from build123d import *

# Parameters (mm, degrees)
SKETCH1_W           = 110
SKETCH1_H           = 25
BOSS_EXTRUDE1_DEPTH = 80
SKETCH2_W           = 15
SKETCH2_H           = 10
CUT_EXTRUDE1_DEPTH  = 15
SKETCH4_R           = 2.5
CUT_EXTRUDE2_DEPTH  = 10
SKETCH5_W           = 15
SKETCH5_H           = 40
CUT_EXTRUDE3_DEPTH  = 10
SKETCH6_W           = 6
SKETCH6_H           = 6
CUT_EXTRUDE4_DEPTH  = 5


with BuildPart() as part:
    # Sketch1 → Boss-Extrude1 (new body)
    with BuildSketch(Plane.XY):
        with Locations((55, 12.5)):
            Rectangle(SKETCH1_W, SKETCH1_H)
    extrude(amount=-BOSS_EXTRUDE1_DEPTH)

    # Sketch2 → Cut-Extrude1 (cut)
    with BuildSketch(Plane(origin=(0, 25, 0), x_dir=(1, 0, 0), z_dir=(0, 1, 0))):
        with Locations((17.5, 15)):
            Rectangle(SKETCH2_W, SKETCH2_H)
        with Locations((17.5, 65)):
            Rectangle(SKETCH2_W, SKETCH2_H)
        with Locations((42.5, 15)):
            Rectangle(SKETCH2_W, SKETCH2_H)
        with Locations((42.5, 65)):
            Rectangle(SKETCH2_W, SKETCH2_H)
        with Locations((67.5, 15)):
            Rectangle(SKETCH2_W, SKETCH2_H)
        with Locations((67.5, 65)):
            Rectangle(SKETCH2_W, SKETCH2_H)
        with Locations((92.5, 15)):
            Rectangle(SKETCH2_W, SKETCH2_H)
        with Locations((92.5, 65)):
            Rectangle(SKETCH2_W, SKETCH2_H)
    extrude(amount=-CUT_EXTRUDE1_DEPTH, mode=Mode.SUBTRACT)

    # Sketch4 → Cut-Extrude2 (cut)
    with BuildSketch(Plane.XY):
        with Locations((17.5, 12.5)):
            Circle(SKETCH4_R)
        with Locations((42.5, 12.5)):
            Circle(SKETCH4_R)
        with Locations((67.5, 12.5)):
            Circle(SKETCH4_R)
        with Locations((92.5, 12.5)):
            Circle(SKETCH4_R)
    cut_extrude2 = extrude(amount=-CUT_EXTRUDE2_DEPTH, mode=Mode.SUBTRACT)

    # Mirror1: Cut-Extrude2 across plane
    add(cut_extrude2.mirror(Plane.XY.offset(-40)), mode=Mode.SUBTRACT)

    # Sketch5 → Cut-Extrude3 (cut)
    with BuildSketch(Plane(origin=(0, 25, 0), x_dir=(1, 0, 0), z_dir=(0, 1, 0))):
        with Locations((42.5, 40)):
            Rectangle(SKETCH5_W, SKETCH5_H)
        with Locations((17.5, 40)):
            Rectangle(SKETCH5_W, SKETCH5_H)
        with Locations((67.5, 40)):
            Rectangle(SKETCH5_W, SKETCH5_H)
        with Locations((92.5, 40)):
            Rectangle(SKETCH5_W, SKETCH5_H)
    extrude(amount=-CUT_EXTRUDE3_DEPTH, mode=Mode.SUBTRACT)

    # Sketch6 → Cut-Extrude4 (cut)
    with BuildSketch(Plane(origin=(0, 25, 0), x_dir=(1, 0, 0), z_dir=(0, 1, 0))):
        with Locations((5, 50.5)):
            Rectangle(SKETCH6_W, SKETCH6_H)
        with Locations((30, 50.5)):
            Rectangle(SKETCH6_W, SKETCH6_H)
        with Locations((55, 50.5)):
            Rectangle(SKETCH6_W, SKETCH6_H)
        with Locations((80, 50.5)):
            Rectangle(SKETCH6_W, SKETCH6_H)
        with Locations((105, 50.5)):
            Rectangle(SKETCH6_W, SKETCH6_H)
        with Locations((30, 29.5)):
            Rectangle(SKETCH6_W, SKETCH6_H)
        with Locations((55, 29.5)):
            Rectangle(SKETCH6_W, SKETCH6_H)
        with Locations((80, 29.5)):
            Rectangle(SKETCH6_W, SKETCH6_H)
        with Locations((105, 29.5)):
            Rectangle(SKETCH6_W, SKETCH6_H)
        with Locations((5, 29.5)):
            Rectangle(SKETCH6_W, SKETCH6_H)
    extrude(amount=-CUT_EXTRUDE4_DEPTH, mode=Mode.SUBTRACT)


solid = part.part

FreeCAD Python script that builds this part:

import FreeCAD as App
import Part
import Sketcher


def add_polygon(sketch, points):
    """Adds a closed chain of lines whose ends are joined by coincident constraints."""
    first, n = sketch.GeometryCount, len(points)
    for a, b in zip(points, points[1:] + points[:1]):
        sketch.addGeometry(Part.LineSegment(App.Vector(*a, 0), App.Vector(*b, 0)), False)
    for i in range(n):
        sketch.addConstraint(Sketcher.Constraint("Coincident", first + i, 2, first + (i + 1) % n, 1))

doc = App.newDocument("Part")
body = doc.addObject("PartDesign::Body", "Body")

# Sketch on XY plane
sketch1 = body.newObject("Sketcher::SketchObject", "Sketch")
sketch1.AttachmentSupport = (doc.getObject("XY_Plane"), [""])
sketch1.MapMode = "FlatFace"
add_polygon(sketch1, [(0, 25), (0, 0), (110, 0), (110, 25)])  # lines 0-3
sketch1.addConstraint(Sketcher.Constraint("Vertical", 0))
sketch1.addConstraint(Sketcher.Constraint("Horizontal", 1))
sketch1.addConstraint(Sketcher.Constraint("Vertical", 2))
sketch1.addConstraint(Sketcher.Constraint("Horizontal", 3))
sketch1.addConstraint(Sketcher.Constraint("Coincident", 0, 2, -1, 1))
sketch1.addConstraint(Sketcher.Constraint("DistanceX", 1, 1, 1, 2, 110.0))
sketch1.addConstraint(Sketcher.Constraint("DistanceY", 0, 2, 0, 1, 25.0))
pad1 = body.newObject("PartDesign::Pad", "Pad")
pad1.Profile = sketch1
pad1.Length = 80
pad1.Reversed = True

# Sketch on XZ plane
sketch2 = body.newObject("Sketcher::SketchObject", "Sketch001")
sketch2.AttachmentSupport = (doc.getObject("XZ_Plane"), [""])
sketch2.MapMode = "FlatFace"
sketch2.AttachmentOffset = App.Placement(App.Vector(0, 0, -25), App.Rotation())
add_polygon(sketch2, [(10, -20), (10, -10), (25, -10), (25, -20)])  # lines 0-3
add_polygon(sketch2, [(10, -70), (10, -60), (25, -60), (25, -70)])  # lines 4-7
add_polygon(sketch2, [(35, -20), (35, -10), (50, -10), (50, -20)])  # lines 8-11
add_polygon(sketch2, [(35, -70), (35, -60), (50, -60), (50, -70)])  # lines 12-15
add_polygon(sketch2, [(60, -20), (60, -10), (75, -10), (75, -20)])  # lines 16-19
add_polygon(sketch2, [(60, -70), (60, -60), (75, -60), (75, -70)])  # lines 20-23
add_polygon(sketch2, [(85, -20), (85, -10), (100, -10), (100, -20)])  # lines 24-27
add_polygon(sketch2, [(85, -70), (85, -60), (100, -60), (100, -70)])  # lines 28-31
sketch2.addConstraint(Sketcher.Constraint("Vertical", 0))
sketch2.addConstraint(Sketcher.Constraint("Horizontal", 1))
sketch2.addConstraint(Sketcher.Constraint("Vertical", 2))
sketch2.addConstraint(Sketcher.Constraint("Horizontal", 3))
sketch2.addConstraint(Sketcher.Constraint("Vertical", 4))
sketch2.addConstraint(Sketcher.Constraint("Horizontal", 5))
sketch2.addConstraint(Sketcher.Constraint("Vertical", 6))
sketch2.addConstraint(Sketcher.Constraint("Horizontal", 7))
sketch2.addConstraint(Sketcher.Constraint("Vertical", 8))
sketch2.addConstraint(Sketcher.Constraint("Horizontal", 9))
sketch2.addConstraint(Sketcher.Constraint("Vertical", 10))
sketch2.addConstraint(Sketcher.Constraint("Horizontal", 11))
sketch2.addConstraint(Sketcher.Constraint("Vertical", 12))
sketch2.addConstraint(Sketcher.Constraint("Horizontal", 13))
sketch2.addConstraint(Sketcher.Constraint("Vertical", 14))
sketch2.addConstraint(Sketcher.Constraint("Horizontal", 15))
sketch2.addConstraint(Sketcher.Constraint("Vertical", 16))
sketch2.addConstraint(Sketcher.Constraint("Horizontal", 17))
sketch2.addConstraint(Sketcher.Constraint("Vertical", 18))
sketch2.addConstraint(Sketcher.Constraint("Horizontal", 19))
sketch2.addConstraint(Sketcher.Constraint("Vertical", 20))
sketch2.addConstraint(Sketcher.Constraint("Horizontal", 21))
sketch2.addConstraint(Sketcher.Constraint("Vertical", 22))
sketch2.addConstraint(Sketcher.Constraint("Horizontal", 23))
sketch2.addConstraint(Sketcher.Constraint("Vertical", 24))
sketch2.addConstraint(Sketcher.Constraint("Horizontal", 25))
sketch2.addConstraint(Sketcher.Constraint("Vertical", 26))
sketch2.addConstraint(Sketcher.Constraint("Horizontal", 27))
sketch2.addConstraint(Sketcher.Constraint("Vertical", 28))
sketch2.addConstraint(Sketcher.Constraint("Horizontal", 29))
sketch2.addConstraint(Sketcher.Constraint("Vertical", 30))
sketch2.addConstraint(Sketcher.Constraint("Horizontal", 31))
sketch2.addConstraint(Sketcher.Constraint("Horizontal", 1, 2, 8, 2))
sketch2.addConstraint(Sketcher.Constraint("Horizontal", 3, 2, 10, 2))
sketch2.addConstraint(Sketcher.Constraint("Horizontal", 5, 2, 12, 2))
sketch2.addConstraint(Sketcher.Constraint("Horizontal", 7, 2, 14, 2))
sketch2.addConstraint(Sketcher.Constraint("Horizontal", 9, 2, 16, 2))
sketch2.addConstraint(Sketcher.Constraint("Horizontal", 11, 2, 18, 2))
sketch2.addConstraint(Sketcher.Constraint("Horizontal", 13, 2, 20, 2))
sketch2.addConstraint(Sketcher.Constraint("Horizontal", 15, 2, 22, 2))
sketch2.addConstraint(Sketcher.Constraint("Horizontal", 17, 2, 24, 2))
sketch2.addConstraint(Sketcher.Constraint("Horizontal", 19, 2, 26, 2))
sketch2.addConstraint(Sketcher.Constraint("Horizontal", 21, 2, 28, 2))
sketch2.addConstraint(Sketcher.Constraint("Horizontal", 23, 2, 30, 2))
sketch2.addConstraint(Sketcher.Constraint("Vertical", 3, 2, 4, 2))
sketch2.addConstraint(Sketcher.Constraint("Vertical", 2, 2, 5, 2))
sketch2.addConstraint(Sketcher.Constraint("Vertical", 11, 2, 12, 2))
sketch2.addConstraint(Sketcher.Constraint("Vertical", 10, 2, 13, 2))
sketch2.addConstraint(Sketcher.Constraint("Vertical", 19, 2, 20, 2))
sketch2.addConstraint(Sketcher.Constraint("Vertical", 18, 2, 21, 2))
sketch2.addConstraint(Sketcher.Constraint("Vertical", 27, 2, 28, 2))
sketch2.addConstraint(Sketcher.Constraint("Vertical", 26, 2, 29, 2))
sketch2.addConstraint(Sketcher.Constraint("Equal", 7, 9))
sketch2.addConstraint(Sketcher.Constraint("Equal", 15, 17))
sketch2.addConstraint(Sketcher.Constraint("Equal", 23, 25))
sketch2.addConstraint(Sketcher.Constraint("Equal", 2, 4))
sketch2.addConstraint(Sketcher.Constraint("DistanceX", 1, 1, 1, 2, 15.0))
sketch2.addConstraint(Sketcher.Constraint("DistanceY", 0, 1, 0, 2, 10.0))
sketch2.addConstraint(Sketcher.Constraint("DistanceX", -1, 1, 0, 2, 10.0))
sketch2.addConstraint(Sketcher.Constraint("DistanceY", 0, 2, -1, 1, 10.0))
sketch2.addConstraint(Sketcher.Constraint("DistanceY", 4, 2, -1, 1, 60.0))
sketch2.addConstraint(Sketcher.Constraint("DistanceX", -1, 1, 8, 2, 35.0))
sketch2.addConstraint(Sketcher.Constraint("DistanceX", -1, 1, 16, 2, 60.0))
sketch2.addConstraint(Sketcher.Constraint("DistanceX", -1, 1, 24, 2, 85.0))
pocket1 = body.newObject("PartDesign::Pocket", "Pocket")
pocket1.Profile = sketch2
pocket1.Length = 15
pocket1.Reversed = True

# Sketch on XY plane
sketch3 = body.newObject("Sketcher::SketchObject", "Sketch002")
sketch3.AttachmentSupport = (doc.getObject("XY_Plane"), [""])
sketch3.MapMode = "FlatFace"
sketch3.addGeometry(Part.Circle(App.Vector(17.5, 12.5, 0), App.Vector(0, 0, 1), 2.5), False)
sketch3.addGeometry(Part.Circle(App.Vector(42.5, 12.5, 0), App.Vector(0, 0, 1), 2.5), False)
sketch3.addGeometry(Part.Circle(App.Vector(67.5, 12.5, 0), App.Vector(0, 0, 1), 2.5), False)
sketch3.addGeometry(Part.Circle(App.Vector(92.5, 12.5, 0), App.Vector(0, 0, 1), 2.5), False)
sketch3.addConstraint(Sketcher.Constraint("Equal", 0, 1))
sketch3.addConstraint(Sketcher.Constraint("Equal", 1, 2))
sketch3.addConstraint(Sketcher.Constraint("Equal", 2, 3))
sketch3.addConstraint(Sketcher.Constraint("Horizontal", 0, 3, 1, 3))
sketch3.addConstraint(Sketcher.Constraint("Horizontal", 1, 3, 2, 3))
sketch3.addConstraint(Sketcher.Constraint("Horizontal", 2, 3, 3, 3))
sketch3.addConstraint(Sketcher.Constraint("Diameter", 0, 5.0))
sketch3.addConstraint(Sketcher.Constraint("DistanceX", 0, 3, 1, 3, 25.0))
sketch3.addConstraint(Sketcher.Constraint("DistanceX", 1, 3, 2, 3, 25.0))
sketch3.addConstraint(Sketcher.Constraint("DistanceX", 2, 3, 3, 3, 25.0))
sketch3.addConstraint(Sketcher.Constraint("DistanceX", -1, 1, 0, 3, 17.5))
sketch3.addConstraint(Sketcher.Constraint("DistanceY", -1, 1, 0, 3, 12.5))
pocket2 = body.newObject("PartDesign::Pocket", "Pocket001")
pocket2.Profile = sketch3
pocket2.Length = 10
doc.recompute()

datumplane = body.newObject("PartDesign::Plane", "DatumPlane")
datumplane.AttachmentSupport = (doc.getObject("XY_Plane"), [""])
datumplane.MapMode = "FlatFace"
datumplane.AttachmentOffset = App.Placement(App.Vector(0, 0, -40), App.Rotation())
mirrored = body.newObject("PartDesign::Mirrored", "Mirrored")
mirrored.Originals = [pocket2]
mirrored.MirrorPlane = (datumplane, [""])
body.Tip = mirrored

# Sketch on XZ plane
sketch4 = body.newObject("Sketcher::SketchObject", "Sketch003")
sketch4.AttachmentSupport = (doc.getObject("XZ_Plane"), [""])
sketch4.MapMode = "FlatFace"
sketch4.AttachmentOffset = App.Placement(App.Vector(0, 0, -25), App.Rotation())
add_polygon(sketch4, [(35, -60), (35, -20), (50, -20), (50, -60)])  # lines 0-3
add_polygon(sketch4, [(10, -60), (10, -20), (25, -20), (25, -60)])  # lines 4-7
add_polygon(sketch4, [(60, -60), (60, -20), (75, -20), (75, -60)])  # lines 8-11
add_polygon(sketch4, [(85, -60), (85, -20), (100, -20), (100, -60)])  # lines 12-15
sketch4.addConstraint(Sketcher.Constraint("Vertical", 0))
sketch4.addConstraint(Sketcher.Constraint("Horizontal", 1))
sketch4.addConstraint(Sketcher.Constraint("Vertical", 2))
sketch4.addConstraint(Sketcher.Constraint("Horizontal", 3))
sketch4.addConstraint(Sketcher.Constraint("Vertical", 4))
sketch4.addConstraint(Sketcher.Constraint("Horizontal", 5))
sketch4.addConstraint(Sketcher.Constraint("Vertical", 6))
sketch4.addConstraint(Sketcher.Constraint("Horizontal", 7))
sketch4.addConstraint(Sketcher.Constraint("Vertical", 8))
sketch4.addConstraint(Sketcher.Constraint("Horizontal", 9))
sketch4.addConstraint(Sketcher.Constraint("Vertical", 10))
sketch4.addConstraint(Sketcher.Constraint("Horizontal", 11))
sketch4.addConstraint(Sketcher.Constraint("Vertical", 12))
sketch4.addConstraint(Sketcher.Constraint("Horizontal", 13))
sketch4.addConstraint(Sketcher.Constraint("Vertical", 14))
sketch4.addConstraint(Sketcher.Constraint("Horizontal", 15))
sketch4.addConstraint(Sketcher.Constraint("Horizontal", 1, 2, 4, 2))
sketch4.addConstraint(Sketcher.Constraint("Horizontal", 3, 2, 6, 2))
sketch4.addConstraint(Sketcher.Constraint("Horizontal", 5, 2, 8, 2))
sketch4.addConstraint(Sketcher.Constraint("Horizontal", 7, 2, 10, 2))
sketch4.addConstraint(Sketcher.Constraint("Horizontal", 9, 2, 12, 2))
sketch4.addConstraint(Sketcher.Constraint("Horizontal", 11, 2, 14, 2))
sketch4.addConstraint(Sketcher.Constraint("Equal", 3, 5))
sketch4.addConstraint(Sketcher.Constraint("Equal", 7, 9))
sketch4.addConstraint(Sketcher.Constraint("Equal", 11, 13))
sketch4.addConstraint(Sketcher.Constraint("DistanceX", 1, 1, 1, 2, 15.0))
sketch4.addConstraint(Sketcher.Constraint("DistanceY", 0, 1, 0, 2, 40.0))
sketch4.addConstraint(Sketcher.Constraint("DistanceX", -1, 1, 0, 2, 35.0))
sketch4.addConstraint(Sketcher.Constraint("DistanceY", 0, 2, -1, 1, 20.0))
sketch4.addConstraint(Sketcher.Constraint("DistanceX", -1, 1, 4, 2, 10.0))
sketch4.addConstraint(Sketcher.Constraint("DistanceX", -1, 1, 8, 2, 60.0))
sketch4.addConstraint(Sketcher.Constraint("DistanceX", -1, 1, 12, 2, 85.0))
pocket3 = body.newObject("PartDesign::Pocket", "Pocket002")
pocket3.Profile = sketch4
pocket3.Length = 10
pocket3.Reversed = True

# Sketch on XZ plane
sketch5 = body.newObject("Sketcher::SketchObject", "Sketch004")
sketch5.AttachmentSupport = (doc.getObject("XZ_Plane"), [""])
sketch5.MapMode = "FlatFace"
sketch5.AttachmentOffset = App.Placement(App.Vector(0, 0, -25), App.Rotation())
add_polygon(sketch5, [(2, -53.5), (2, -47.5), (8, -47.5), (8, -53.5)])  # lines 0-3
add_polygon(sketch5, [(27, -53.5), (27, -47.5), (33, -47.5), (33, -53.5)])  # lines 4-7
add_polygon(sketch5, [(52, -53.5), (52, -47.5), (58, -47.5), (58, -53.5)])  # lines 8-11
add_polygon(sketch5, [(77, -53.5), (77, -47.5), (83, -47.5), (83, -53.5)])  # lines 12-15
add_polygon(sketch5, [(102, -53.5), (102, -47.5), (108, -47.5), (108, -53.5)])  # lines 16-19
add_polygon(sketch5, [(27, -32.5), (27, -26.5), (33, -26.5), (33, -32.5)])  # lines 20-23
add_polygon(sketch5, [(52, -32.5), (52, -26.5), (58, -26.5), (58, -32.5)])  # lines 24-27
add_polygon(sketch5, [(77, -32.5), (77, -26.5), (83, -26.5), (83, -32.5)])  # lines 28-31
add_polygon(sketch5, [(102, -32.5), (102, -26.5), (108, -26.5), (108, -32.5)])  # lines 32-35
add_polygon(sketch5, [(2, -32.5), (2, -26.5), (8, -26.5), (8, -32.5)])  # lines 36-39
sketch5.addConstraint(Sketcher.Constraint("Vertical", 0))
sketch5.addConstraint(Sketcher.Constraint("Horizontal", 1))
sketch5.addConstraint(Sketcher.Constraint("Vertical", 2))
sketch5.addConstraint(Sketcher.Constraint("Horizontal", 3))
sketch5.addConstraint(Sketcher.Constraint("Vertical", 4))
sketch5.addConstraint(Sketcher.Constraint("Horizontal", 5))
sketch5.addConstraint(Sketcher.Constraint("Vertical", 6))
sketch5.addConstraint(Sketcher.Constraint("Horizontal", 7))
sketch5.addConstraint(Sketcher.Constraint("Vertical", 8))
sketch5.addConstraint(Sketcher.Constraint("Horizontal", 9))
sketch5.addConstraint(Sketcher.Constraint("Vertical", 10))
sketch5.addConstraint(Sketcher.Constraint("Horizontal", 11))
sketch5.addConstraint(Sketcher.Constraint("Vertical", 12))
sketch5.addConstraint(Sketcher.Constraint("Horizontal", 13))
sketch5.addConstraint(Sketcher.Constraint("Vertical", 14))
sketch5.addConstraint(Sketcher.Constraint("Horizontal", 15))
sketch5.addConstraint(Sketcher.Constraint("Vertical", 16))
sketch5.addConstraint(Sketcher.Constraint("Horizontal", 17))
sketch5.addConstraint(Sketcher.Constraint("Vertical", 18))
sketch5.addConstraint(Sketcher.Constraint("Horizontal", 19))
sketch5.addConstraint(Sketcher.Constraint("Vertical", 20))
sketch5.addConstraint(Sketcher.Constraint("Horizontal", 21))
sketch5.addConstraint(Sketcher.Constraint("Vertical", 22))
sketch5.addConstraint(Sketcher.Constraint("Horizontal", 23))
sketch5.addConstraint(Sketcher.Constraint("Vertical", 24))
sketch5.addConstraint(Sketcher.Constraint("Horizontal", 25))
sketch5.addConstraint(Sketcher.Constraint("Vertical", 26))
sketch5.addConstraint(Sketcher.Constraint("Horizontal", 27))
sketch5.addConstraint(Sketcher.Constraint("Vertical", 28))
sketch5.addConstraint(Sketcher.Constraint("Horizontal", 29))
sketch5.addConstraint(Sketcher.Constraint("Vertical", 30))
sketch5.addConstraint(Sketcher.Constraint("Horizontal", 31))
sketch5.addConstraint(Sketcher.Constraint("Vertical", 32))
sketch5.addConstraint(Sketcher.Constraint("Horizontal", 33))
sketch5.addConstraint(Sketcher.Constraint("Vertical", 34))
sketch5.addConstraint(Sketcher.Constraint("Horizontal", 35))
sketch5.addConstraint(Sketcher.Constraint("Vertical", 36))
sketch5.addConstraint(Sketcher.Constraint("Horizontal", 37))
sketch5.addConstraint(Sketcher.Constraint("Vertical", 38))
sketch5.addConstraint(Sketcher.Constraint("Horizontal", 39))
sketch5.addConstraint(Sketcher.Constraint("Horizontal", 1, 2, 4, 2))
sketch5.addConstraint(Sketcher.Constraint("Horizontal", 3, 2, 6, 2))
sketch5.addConstraint(Sketcher.Constraint("Horizontal", 5, 2, 8, 2))
sketch5.addConstraint(Sketcher.Constraint("Horizontal", 7, 2, 10, 2))
sketch5.addConstraint(Sketcher.Constraint("Horizontal", 9, 2, 12, 2))
sketch5.addConstraint(Sketcher.Constraint("Horizontal", 11, 2, 14, 2))
sketch5.addConstraint(Sketcher.Constraint("Horizontal", 13, 2, 16, 2))
sketch5.addConstraint(Sketcher.Constraint("Horizontal", 15, 2, 18, 2))
sketch5.addConstraint(Sketcher.Constraint("Horizontal", 21, 2, 24, 2))
sketch5.addConstraint(Sketcher.Constraint("Horizontal", 23, 2, 26, 2))
sketch5.addConstraint(Sketcher.Constraint("Horizontal", 25, 2, 28, 2))
sketch5.addConstraint(Sketcher.Constraint("Horizontal", 27, 2, 30, 2))
sketch5.addConstraint(Sketcher.Constraint("Horizontal", 29, 2, 32, 2))
sketch5.addConstraint(Sketcher.Constraint("Horizontal", 31, 2, 34, 2))
sketch5.addConstraint(Sketcher.Constraint("Horizontal", 33, 2, 36, 2))
sketch5.addConstraint(Sketcher.Constraint("Horizontal", 35, 2, 38, 2))
sketch5.addConstraint(Sketcher.Constraint("Vertical", 7, 2, 20, 2))
sketch5.addConstraint(Sketcher.Constraint("Vertical", 6, 2, 21, 2))
sketch5.addConstraint(Sketcher.Constraint("Vertical", 11, 2, 24, 2))
sketch5.addConstraint(Sketcher.Constraint("Vertical", 10, 2, 25, 2))
sketch5.addConstraint(Sketcher.Constraint("Vertical", 15, 2, 28, 2))
sketch5.addConstraint(Sketcher.Constraint("Vertical", 14, 2, 29, 2))
sketch5.addConstraint(Sketcher.Constraint("Vertical", 19, 2, 32, 2))
sketch5.addConstraint(Sketcher.Constraint("Vertical", 18, 2, 33, 2))
sketch5.addConstraint(Sketcher.Constraint("Vertical", 3, 2, 36, 2))
sketch5.addConstraint(Sketcher.Constraint("Vertical", 2, 2, 37, 2))
sketch5.addConstraint(Sketcher.Constraint("Equal", 3, 5))
sketch5.addConstraint(Sketcher.Constraint("Equal", 7, 9))
sketch5.addConstraint(Sketcher.Constraint("Equal", 11, 13))
sketch5.addConstraint(Sketcher.Constraint("Equal", 15, 17))
sketch5.addConstraint(Sketcher.Constraint("Equal", 39, 0))
sketch5.addConstraint(Sketcher.Constraint("Equal", 18, 20))
sketch5.addConstraint(Sketcher.Constraint("DistanceX", 1, 1, 1, 2, 6.0))
sketch5.addConstraint(Sketcher.Constraint("DistanceX", -1, 1, 0, 2, 2.0))
sketch5.addConstraint(Sketcher.Constraint("DistanceX", -1, 1, 4, 2, 27.0))
sketch5.addConstraint(Sketcher.Constraint("DistanceX", -1, 1, 8, 2, 52.0))
sketch5.addConstraint(Sketcher.Constraint("DistanceX", -1, 1, 12, 2, 77.0))
sketch5.addConstraint(Sketcher.Constraint("DistanceX", -1, 1, 16, 2, 102.0))
sketch5.addConstraint(Sketcher.Constraint("DistanceY", 4, 2, 20, 2, 21.0))
sketch5.addConstraint(Sketcher.Constraint("DistanceY", 0, 2, -1, 1, 47.5))
pocket4 = body.newObject("PartDesign::Pocket", "Pocket003")
pocket4.Profile = sketch5
pocket4.Length = 5
pocket4.Reversed = True

doc.recompute()
